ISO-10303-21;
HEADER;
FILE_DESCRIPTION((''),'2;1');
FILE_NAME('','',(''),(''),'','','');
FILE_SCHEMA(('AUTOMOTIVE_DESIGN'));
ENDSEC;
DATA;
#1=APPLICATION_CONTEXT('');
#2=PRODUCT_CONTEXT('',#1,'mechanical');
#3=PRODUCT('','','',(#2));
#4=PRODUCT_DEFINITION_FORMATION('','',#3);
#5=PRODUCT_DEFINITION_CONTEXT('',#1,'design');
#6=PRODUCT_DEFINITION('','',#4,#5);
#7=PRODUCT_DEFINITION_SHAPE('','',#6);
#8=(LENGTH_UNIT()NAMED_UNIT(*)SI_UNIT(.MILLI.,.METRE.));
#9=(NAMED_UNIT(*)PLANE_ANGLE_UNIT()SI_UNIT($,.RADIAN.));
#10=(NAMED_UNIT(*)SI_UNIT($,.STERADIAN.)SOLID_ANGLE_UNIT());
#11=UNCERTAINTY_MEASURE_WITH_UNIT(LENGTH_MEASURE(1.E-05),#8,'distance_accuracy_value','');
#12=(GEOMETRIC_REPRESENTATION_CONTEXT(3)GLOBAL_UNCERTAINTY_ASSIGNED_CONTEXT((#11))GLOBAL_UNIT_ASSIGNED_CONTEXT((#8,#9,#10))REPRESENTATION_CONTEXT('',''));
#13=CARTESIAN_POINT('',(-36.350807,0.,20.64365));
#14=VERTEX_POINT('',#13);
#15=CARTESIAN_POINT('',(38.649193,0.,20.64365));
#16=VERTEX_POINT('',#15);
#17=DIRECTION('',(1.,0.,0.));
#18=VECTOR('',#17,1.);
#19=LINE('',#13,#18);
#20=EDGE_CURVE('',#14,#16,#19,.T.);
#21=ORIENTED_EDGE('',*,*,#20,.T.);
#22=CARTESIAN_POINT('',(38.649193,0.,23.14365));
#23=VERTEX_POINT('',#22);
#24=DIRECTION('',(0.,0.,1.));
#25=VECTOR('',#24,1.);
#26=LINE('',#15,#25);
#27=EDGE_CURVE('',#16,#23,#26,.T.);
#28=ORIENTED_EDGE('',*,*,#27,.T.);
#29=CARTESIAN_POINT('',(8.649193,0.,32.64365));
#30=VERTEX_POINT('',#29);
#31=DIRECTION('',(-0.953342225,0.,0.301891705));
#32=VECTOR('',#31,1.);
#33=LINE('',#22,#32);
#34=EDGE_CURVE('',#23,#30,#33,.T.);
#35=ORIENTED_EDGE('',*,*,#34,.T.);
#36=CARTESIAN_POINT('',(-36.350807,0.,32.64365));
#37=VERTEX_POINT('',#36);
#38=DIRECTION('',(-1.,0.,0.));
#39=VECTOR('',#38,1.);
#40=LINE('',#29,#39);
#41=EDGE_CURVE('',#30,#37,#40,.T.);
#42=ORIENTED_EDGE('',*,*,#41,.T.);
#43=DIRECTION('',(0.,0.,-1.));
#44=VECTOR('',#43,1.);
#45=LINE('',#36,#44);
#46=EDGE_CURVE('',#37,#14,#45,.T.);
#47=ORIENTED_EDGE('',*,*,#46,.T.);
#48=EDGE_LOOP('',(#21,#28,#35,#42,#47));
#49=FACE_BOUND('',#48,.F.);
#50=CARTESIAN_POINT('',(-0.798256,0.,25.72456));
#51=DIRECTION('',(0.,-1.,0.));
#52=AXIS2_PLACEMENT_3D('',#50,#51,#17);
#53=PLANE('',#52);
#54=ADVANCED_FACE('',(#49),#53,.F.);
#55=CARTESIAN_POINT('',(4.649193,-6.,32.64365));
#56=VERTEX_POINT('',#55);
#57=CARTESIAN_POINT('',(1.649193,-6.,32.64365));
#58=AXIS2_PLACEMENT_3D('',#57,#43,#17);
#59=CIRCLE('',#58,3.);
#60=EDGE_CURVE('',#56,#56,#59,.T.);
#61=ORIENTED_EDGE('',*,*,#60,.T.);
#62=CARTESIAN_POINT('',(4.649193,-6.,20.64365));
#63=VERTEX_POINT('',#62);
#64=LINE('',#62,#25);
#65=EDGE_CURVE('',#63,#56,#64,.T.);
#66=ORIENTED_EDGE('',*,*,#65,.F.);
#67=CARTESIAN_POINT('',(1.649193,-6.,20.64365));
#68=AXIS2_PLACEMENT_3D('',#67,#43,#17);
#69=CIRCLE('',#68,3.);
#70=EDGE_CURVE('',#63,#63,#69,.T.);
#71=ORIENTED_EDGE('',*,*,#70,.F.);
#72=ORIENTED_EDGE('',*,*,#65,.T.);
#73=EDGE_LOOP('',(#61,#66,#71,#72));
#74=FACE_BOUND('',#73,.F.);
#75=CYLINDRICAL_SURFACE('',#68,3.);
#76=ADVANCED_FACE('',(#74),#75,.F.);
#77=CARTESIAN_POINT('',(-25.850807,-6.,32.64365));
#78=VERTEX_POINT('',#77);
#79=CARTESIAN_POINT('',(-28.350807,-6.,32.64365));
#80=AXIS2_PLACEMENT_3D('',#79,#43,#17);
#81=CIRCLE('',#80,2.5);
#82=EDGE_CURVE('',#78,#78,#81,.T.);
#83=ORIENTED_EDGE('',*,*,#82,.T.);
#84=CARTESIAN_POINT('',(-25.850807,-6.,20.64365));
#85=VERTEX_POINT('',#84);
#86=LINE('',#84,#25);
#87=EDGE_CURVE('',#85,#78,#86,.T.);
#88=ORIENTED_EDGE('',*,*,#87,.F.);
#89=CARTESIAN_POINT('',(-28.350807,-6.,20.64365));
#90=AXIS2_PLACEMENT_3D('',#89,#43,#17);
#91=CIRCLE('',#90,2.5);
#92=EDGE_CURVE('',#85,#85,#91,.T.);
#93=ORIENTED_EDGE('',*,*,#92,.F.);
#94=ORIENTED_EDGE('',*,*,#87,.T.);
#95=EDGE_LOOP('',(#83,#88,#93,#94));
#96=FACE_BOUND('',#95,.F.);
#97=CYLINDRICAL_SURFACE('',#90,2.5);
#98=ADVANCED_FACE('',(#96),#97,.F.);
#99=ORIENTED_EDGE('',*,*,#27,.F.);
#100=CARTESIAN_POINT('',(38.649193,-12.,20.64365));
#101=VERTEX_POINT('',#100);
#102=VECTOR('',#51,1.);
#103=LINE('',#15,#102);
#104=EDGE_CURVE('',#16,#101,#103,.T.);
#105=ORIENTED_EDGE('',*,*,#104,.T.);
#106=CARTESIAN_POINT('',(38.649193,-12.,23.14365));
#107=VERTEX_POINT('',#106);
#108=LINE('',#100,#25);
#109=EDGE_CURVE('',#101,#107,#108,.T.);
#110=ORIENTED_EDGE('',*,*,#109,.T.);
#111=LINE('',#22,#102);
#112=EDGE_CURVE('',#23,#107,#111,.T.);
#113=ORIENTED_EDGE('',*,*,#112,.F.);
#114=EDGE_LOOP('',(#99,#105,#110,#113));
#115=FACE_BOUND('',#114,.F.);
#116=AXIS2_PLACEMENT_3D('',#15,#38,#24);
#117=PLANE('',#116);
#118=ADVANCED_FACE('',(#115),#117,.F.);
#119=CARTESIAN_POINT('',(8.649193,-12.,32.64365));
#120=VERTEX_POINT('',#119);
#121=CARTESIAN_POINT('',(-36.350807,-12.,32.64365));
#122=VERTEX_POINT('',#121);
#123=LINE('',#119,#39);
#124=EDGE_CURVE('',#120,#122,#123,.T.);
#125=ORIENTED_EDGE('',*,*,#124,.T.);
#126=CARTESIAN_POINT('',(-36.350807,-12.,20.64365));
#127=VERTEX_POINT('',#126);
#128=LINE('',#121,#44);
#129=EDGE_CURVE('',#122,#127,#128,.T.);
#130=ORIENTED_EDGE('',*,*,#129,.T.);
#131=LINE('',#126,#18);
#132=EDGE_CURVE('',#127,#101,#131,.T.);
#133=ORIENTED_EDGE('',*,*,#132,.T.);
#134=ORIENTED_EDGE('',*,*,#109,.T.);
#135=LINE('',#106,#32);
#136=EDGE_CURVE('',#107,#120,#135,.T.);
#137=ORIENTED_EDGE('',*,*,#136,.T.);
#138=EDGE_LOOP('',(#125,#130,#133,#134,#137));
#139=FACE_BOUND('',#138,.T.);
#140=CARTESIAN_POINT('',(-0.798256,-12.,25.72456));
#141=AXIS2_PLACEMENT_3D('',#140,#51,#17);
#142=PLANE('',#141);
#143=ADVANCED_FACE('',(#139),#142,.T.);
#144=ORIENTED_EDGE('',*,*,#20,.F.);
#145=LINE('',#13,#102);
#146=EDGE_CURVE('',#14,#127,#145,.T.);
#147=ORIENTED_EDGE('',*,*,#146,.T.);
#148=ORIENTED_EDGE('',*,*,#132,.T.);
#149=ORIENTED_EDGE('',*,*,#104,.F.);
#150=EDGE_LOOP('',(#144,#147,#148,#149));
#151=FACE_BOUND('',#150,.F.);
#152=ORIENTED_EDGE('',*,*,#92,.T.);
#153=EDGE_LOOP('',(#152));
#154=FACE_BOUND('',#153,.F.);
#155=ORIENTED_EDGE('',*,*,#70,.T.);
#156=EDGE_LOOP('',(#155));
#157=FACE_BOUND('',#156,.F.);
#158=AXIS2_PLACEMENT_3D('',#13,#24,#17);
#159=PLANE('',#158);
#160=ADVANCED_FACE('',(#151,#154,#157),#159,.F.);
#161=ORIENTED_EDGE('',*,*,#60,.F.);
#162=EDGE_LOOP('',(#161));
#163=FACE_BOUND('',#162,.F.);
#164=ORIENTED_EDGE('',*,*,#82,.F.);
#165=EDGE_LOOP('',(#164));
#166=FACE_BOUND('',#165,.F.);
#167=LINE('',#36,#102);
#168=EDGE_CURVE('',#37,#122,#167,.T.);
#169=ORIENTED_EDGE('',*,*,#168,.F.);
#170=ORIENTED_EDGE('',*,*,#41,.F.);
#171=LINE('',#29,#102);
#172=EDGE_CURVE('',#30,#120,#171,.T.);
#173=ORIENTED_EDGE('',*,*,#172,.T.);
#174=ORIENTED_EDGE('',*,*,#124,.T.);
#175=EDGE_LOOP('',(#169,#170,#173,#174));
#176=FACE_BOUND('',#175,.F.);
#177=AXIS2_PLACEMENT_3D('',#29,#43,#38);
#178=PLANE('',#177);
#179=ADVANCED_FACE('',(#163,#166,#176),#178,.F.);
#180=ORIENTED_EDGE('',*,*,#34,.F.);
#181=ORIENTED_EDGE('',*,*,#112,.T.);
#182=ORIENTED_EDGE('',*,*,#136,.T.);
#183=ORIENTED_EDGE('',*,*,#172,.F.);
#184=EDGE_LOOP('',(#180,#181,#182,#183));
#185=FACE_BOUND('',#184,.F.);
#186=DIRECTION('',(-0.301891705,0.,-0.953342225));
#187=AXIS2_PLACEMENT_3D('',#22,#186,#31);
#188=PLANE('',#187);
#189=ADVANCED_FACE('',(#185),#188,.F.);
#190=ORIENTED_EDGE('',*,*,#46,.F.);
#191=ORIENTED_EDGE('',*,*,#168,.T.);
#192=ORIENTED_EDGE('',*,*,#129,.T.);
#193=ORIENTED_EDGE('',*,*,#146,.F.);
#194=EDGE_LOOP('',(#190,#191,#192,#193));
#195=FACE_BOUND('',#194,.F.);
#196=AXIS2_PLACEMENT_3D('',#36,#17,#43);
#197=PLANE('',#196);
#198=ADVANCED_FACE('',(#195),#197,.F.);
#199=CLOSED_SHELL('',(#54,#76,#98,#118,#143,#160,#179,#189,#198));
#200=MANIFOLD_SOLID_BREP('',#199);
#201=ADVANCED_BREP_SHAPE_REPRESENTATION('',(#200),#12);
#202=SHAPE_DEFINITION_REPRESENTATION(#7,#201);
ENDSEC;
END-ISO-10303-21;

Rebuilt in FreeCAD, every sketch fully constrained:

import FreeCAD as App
import Part
import Sketcher
from FreeCAD import Vector


def add_polygon(sketch, points):
    """Adds a closed chain of lines whose ends are joined by coincident constraints."""
    first, n = sketch.GeometryCount, len(points)
    for a, b in zip(points, points[1:] + points[:1]):
        sketch.addGeometry(Part.LineSegment(App.Vector(*a, 0), App.Vector(*b, 0)), False)
    for i in range(n):
        sketch.addConstraint(Sketcher.Constraint("Coincident", first + i, 2, first + (i + 1) % n, 1))

doc = App.newDocument("Part")
body = doc.addObject("PartDesign::Body", "Body")

# Sketch on XZ plane
sketch1 = doc.addObject("Sketcher::SketchObject", "Sketch")
body.addObject(sketch1)
sketch1.AttachmentSupport = (doc.XZ_Plane, [""])
sketch1.MapMode = "FlatFace"
add_polygon(sketch1, [(8.6, 32.6), (-36.4, 32.6), (-36.4, 20.6), (38.6, 20.6), (38.6, 23.1)])  # lines 0-4
sketch1.addConstraint(Sketcher.Constraint("Horizontal", 0))
sketch1.addConstraint(Sketcher.Constraint("Vertical", 1))
sketch1.addConstraint(Sketcher.Constraint("Horizontal", 2))
sketch1.addConstraint(Sketcher.Constraint("Vertical", 3))
sketch1.addConstraint(Sketcher.Constraint("DistanceX", 0, 2, 0, 1, 45.0))
sketch1.addConstraint(Sketcher.Constraint("DistanceX", 2, 1, 2, 2, 75.0))
sketch1.addConstraint(Sketcher.Constraint("DistanceY", 1, 2, 1, 1, 12.0))
sketch1.addConstraint(Sketcher.Constraint("DistanceY", 3, 1, 3, 2, 2.5))
sketch1.addConstraint(Sketcher.Constraint("DistanceY", -1, 1, 0, 2, 32.64365))
sketch1.addConstraint(Sketcher.Constraint("DistanceX", 0, 2, -1, 1, 36.350807))
pad1 = doc.addObject("PartDesign::Pad", "Pad")
body.addObject(pad1)
pad1.Profile = sketch1
pad1.Length = 12

# Sketch on XY plane
sketch2 = doc.addObject("Sketcher::SketchObject", "Sketch001")
body.addObject(sketch2)
sketch2.AttachmentSupport = (doc.XY_Plane, [""])
sketch2.MapMode = "FlatFace"
sketch2.AttachmentOffset = App.Placement(Vector(0, 0, 20.64365), App.Rotation())
sketch2.addGeometry(Part.Circle(Vector(1.6, -6, 0), Vector(0, 0, 1), 3), False)
sketch2.addConstraint(Sketcher.Constraint("Diameter", 0, 6.0))
sketch2.addConstraint(Sketcher.Constraint("DistanceY", 0, 3, -1, 1, 6.0))
sketch2.addConstraint(Sketcher.Constraint("DistanceX", -1, 1, 0, 3, 1.649193))
pocket1 = doc.addObject("PartDesign::Pocket", "Pocket")
body.addObject(pocket1)
pocket1.Profile = sketch2
pocket1.Length = 25
pocket1.Reversed = True

# Sketch on XY plane
sketch3 = doc.addObject("Sketcher::SketchObject", "Sketch002")
body.addObject(sketch3)
sketch3.AttachmentSupport = (doc.XY_Plane, [""])
sketch3.MapMode = "FlatFace"
sketch3.AttachmentOffset = App.Placement(Vector(0, 0, 20.64365), App.Rotation())
sketch3.addGeometry(Part.Circle(Vector(-28.4, -6, 0), Vector(0, 0, 1), 2.5), False)
sketch3.addConstraint(Sketcher.Constraint("Diameter", 0, 5.0))
sketch3.addConstraint(Sketcher.Constraint("DistanceY", 0, 3, -1, 1, 6.0))
sketch3.addConstraint(Sketcher.Constraint("DistanceX", 0, 3, -1, 1, 28.350807))
pocket2 = doc.addObject("PartDesign::Pocket", "Pocket001")
body.addObject(pocket2)
pocket2.Profile = sketch3
pocket2.Length = 25
pocket2.Reversed = True

doc.recompute()
